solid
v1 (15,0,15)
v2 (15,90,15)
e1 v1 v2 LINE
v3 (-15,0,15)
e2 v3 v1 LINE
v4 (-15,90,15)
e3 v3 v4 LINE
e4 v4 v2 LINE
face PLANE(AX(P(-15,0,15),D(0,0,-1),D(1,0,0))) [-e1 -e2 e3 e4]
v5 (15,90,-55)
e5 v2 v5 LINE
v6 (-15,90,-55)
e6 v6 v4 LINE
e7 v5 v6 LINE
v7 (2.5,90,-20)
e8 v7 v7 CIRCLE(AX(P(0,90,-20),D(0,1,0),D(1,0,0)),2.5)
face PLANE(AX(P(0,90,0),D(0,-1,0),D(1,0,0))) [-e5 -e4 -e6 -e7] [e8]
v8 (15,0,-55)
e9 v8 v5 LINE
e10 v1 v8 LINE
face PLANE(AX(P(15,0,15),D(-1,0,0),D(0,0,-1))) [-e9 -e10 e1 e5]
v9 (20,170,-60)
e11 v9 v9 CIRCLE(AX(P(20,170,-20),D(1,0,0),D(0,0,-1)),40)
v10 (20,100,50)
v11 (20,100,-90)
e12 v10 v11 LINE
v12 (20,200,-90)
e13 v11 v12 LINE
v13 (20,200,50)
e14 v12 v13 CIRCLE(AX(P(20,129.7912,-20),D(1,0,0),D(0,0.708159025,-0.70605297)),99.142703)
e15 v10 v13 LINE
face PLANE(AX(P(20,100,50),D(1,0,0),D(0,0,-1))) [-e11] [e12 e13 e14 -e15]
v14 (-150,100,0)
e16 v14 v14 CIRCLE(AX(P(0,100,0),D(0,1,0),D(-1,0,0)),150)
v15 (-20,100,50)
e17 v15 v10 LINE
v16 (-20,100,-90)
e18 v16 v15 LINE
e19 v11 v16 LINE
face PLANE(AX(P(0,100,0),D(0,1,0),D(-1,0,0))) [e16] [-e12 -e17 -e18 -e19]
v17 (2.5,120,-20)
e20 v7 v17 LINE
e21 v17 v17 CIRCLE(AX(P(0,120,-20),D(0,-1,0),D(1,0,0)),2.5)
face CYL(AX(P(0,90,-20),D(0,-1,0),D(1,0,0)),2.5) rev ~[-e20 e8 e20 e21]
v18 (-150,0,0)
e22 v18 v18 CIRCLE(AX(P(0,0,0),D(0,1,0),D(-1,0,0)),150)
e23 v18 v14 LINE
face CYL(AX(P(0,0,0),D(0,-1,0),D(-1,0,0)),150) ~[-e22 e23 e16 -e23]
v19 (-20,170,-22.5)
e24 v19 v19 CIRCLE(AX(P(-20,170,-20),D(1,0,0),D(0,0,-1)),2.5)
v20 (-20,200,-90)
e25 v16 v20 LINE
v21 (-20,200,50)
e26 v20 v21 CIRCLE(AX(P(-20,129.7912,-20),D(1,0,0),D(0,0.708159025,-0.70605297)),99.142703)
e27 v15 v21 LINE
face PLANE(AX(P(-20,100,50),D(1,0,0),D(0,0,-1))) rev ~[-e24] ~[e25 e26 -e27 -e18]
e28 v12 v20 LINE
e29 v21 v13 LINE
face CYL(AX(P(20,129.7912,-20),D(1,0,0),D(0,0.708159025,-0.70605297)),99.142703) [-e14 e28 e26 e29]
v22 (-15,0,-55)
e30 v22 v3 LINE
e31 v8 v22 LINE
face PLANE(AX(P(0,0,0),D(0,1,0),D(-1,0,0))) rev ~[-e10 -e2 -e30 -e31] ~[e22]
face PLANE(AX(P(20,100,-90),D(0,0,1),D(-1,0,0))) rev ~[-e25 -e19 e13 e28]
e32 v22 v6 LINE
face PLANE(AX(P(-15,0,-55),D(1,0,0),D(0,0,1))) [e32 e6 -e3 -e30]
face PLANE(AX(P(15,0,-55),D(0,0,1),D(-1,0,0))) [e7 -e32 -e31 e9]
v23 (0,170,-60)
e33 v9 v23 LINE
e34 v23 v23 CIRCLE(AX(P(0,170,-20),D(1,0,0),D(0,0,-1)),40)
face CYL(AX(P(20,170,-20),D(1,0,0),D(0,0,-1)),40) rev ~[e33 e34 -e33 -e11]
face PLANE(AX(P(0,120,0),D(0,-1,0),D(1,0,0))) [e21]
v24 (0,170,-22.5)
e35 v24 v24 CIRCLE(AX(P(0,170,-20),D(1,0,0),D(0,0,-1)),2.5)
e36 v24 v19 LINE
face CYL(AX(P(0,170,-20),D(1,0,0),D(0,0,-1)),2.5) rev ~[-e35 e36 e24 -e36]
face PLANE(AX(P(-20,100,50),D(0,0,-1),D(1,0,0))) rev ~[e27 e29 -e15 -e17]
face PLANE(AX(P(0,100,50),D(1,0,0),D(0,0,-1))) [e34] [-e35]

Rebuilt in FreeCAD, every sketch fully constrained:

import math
import FreeCAD as App
import Part
import Sketcher

V = App.Vector
Q = App.Units.Quantity


def add_polygon(sketch, points):
    """Adds a closed chain of lines whose ends are joined by coincident constraints."""
    first, n = sketch.GeometryCount, len(points)
    for a, b in zip(points, points[1:] + points[:1]):
        sketch.addGeometry(Part.LineSegment(App.Vector(*a, 0), App.Vector(*b, 0)), False)
    for i in range(n):
        sketch.addConstraint(Sketcher.Constraint("Coincident", first + i, 2, first + (i + 1) % n, 1))

doc = App.newDocument("Part")
body = doc.addObject("PartDesign::Body", "Body")

# Sketch on XZ plane
sketch1 = doc.addObject("Sketcher::SketchObject", "Sketch")
body.addObject(sketch1)
sketch1.AttachmentSupport = (doc.XZ_Plane, [""])
sketch1.MapMode = "FlatFace"
sketch1.addGeometry(Part.Circle(V(0, 0, 0), V(0, 0, 1), 150), False)
sketch1.addConstraint([
    Sketcher.Constraint("Coincident", 0, 3, -1, 1),
    Sketcher.Constraint("Diameter", 0, Q("300 mm")),
])
pad1 = doc.addObject("PartDesign::Pad", "Pad")
body.addObject(pad1)
pad1.Profile = sketch1
pad1.Length = 100
pad1.Reversed = True

# Sketch on XZ plane
sketch2 = doc.addObject("Sketcher::SketchObject", "Sketch001")
body.addObject(sketch2)
sketch2.AttachmentSupport = (doc.XZ_Plane, [""])
sketch2.MapMode = "FlatFace"
sketch2.AttachmentOffset = App.Placement(V(0, 0, -100), App.Rotation())
add_polygon(sketch2, [(-20, -90), (-20, 50), (20, 50), (20, -90)])  # lines 0-3
sketch2.addConstraint([
    Sketcher.Constraint("Vertical", 0),
    Sketcher.Constraint("Horizontal", 1),
    Sketcher.Constraint("Vertical", 2),
    Sketcher.Constraint("Horizontal", 3),
    Sketcher.Constraint("DistanceX", 1, 1, 1, 2, Q("40 mm")),
    Sketcher.Constraint("DistanceY", 0, 1, 0, 2, Q("140 mm")),
    Sketcher.Constraint("DistanceX", 0, 2, -1, 1, Q("20 mm")),
    Sketcher.Constraint("DistanceY", -1, 1, 0, 2, Q("50 mm")),
])
pad2 = doc.addObject("PartDesign::Pad", "Pad001")
body.addObject(pad2)
pad2.Profile = sketch2
pad2.Length = 100
pad2.Reversed = True

# Sketch on YZ plane
sketch3 = doc.addObject("Sketcher::SketchObject", "Sketch002")
body.addObject(sketch3)
sketch3.AttachmentSupport = (doc.YZ_Plane, [""])
sketch3.MapMode = "FlatFace"
sketch3.AttachmentOffset = App.Placement(V(0, 0, 20), App.Rotation())
sketch3.addGeometry([
    Part.ArcOfCircle(Part.Circle(V(130, -20, 0), V(0, 0, 1), 99), math.radians(-45), math.radians(45)),
    Part.LineSegment(V(200, 50, 0), V(200, -90, 0)),
], False)
sketch3.addConstraint([
    Sketcher.Constraint("Coincident", 0, 1, 1, 2),
    Sketcher.Constraint("Coincident", 1, 1, 0, 2),
    Sketcher.Constraint("Vertical", 1),
    Sketcher.Constraint("Radius", 0, Q("99.1427 mm")),
    Sketcher.Constraint("DistanceY", 1, 2, 1, 1, Q("140 mm")),
    Sketcher.Constraint("DistanceY", 0, 3, -1, 1, Q("20 mm")),
    Sketcher.Constraint("DistanceX", -1, 1, 0, 1, Q("200 mm")),
])
pad3 = doc.addObject("PartDesign::Pad", "Pad002")
body.addObject(pad3)
pad3.Profile = sketch3
pad3.Length = 40
pad3.Reversed = True

# Sketch on YZ plane
sketch4 = doc.addObject("Sketcher::SketchObject", "Sketch003")
body.addObject(sketch4)
sketch4.AttachmentSupport = (doc.YZ_Plane, [""])
sketch4.MapMode = "FlatFace"
sketch4.AttachmentOffset = App.Placement(V(0, 0, 20), App.Rotation())
sketch4.addGeometry(Part.Circle(V(170, -20, 0), V(0, 0, 1), 40), False)
sketch4.addConstraint([
    Sketcher.Constraint("Diameter", 0, Q("80 mm")),
    Sketcher.Constraint("DistanceX", -1, 1, 0, 3, Q("170 mm")),
    Sketcher.Constraint("DistanceY", 0, 3, -1, 1, Q("20 mm")),
])
pocket1 = doc.addObject("PartDesign::Pocket", "Pocket")
body.addObject(pocket1)
pocket1.Profile = sketch4
pocket1.Length = 20

# Sketch on YZ plane
sketch5 = doc.addObject("Sketcher::SketchObject", "Sketch004")
body.addObject(sketch5)
sketch5.AttachmentSupport = (doc.YZ_Plane, [""])
sketch5.MapMode = "FlatFace"
sketch5.addGeometry(Part.Circle(V(170, -20, 0), V(0, 0, 1), 2.5), False)
sketch5.addConstraint([
    Sketcher.Constraint("Diameter", 0, Q("5 mm")),
    Sketcher.Constraint("DistanceX", -1, 1, 0, 3, Q("170 mm")),
    Sketcher.Constraint("DistanceY", 0, 3, -1, 1, Q("20 mm")),
])
pocket2 = doc.addObject("PartDesign::Pocket", "Pocket001")
body.addObject(pocket2)
pocket2.Profile = sketch5
pocket2.Length = 20

# Sketch on XZ plane
sketch6 = doc.addObject("Sketcher::SketchObject", "Sketch005")
body.addObject(sketch6)
sketch6.AttachmentSupport = (doc.XZ_Plane, [""])
sketch6.MapMode = "FlatFace"
add_polygon(sketch6, [(15, 15), (-15, 15), (-15, -55), (15, -55)])  # lines 0-3
sketch6.addConstraint([
    Sketcher.Constraint("Horizontal", 0),
    Sketcher.Constraint("Vertical", 1),
    Sketcher.Constraint("Horizontal", 2),
    Sketcher.Constraint("Vertical", 3),
    Sketcher.Constraint("DistanceX", 0, 2, 0, 1, Q("30 mm")),
    Sketcher.Constraint("DistanceY", 1, 2, 1, 1, Q("70 mm")),
    Sketcher.Constraint("DistanceX", 0, 2, -1, 1, Q("15 mm")),
    Sketcher.Constraint("DistanceY", -1, 1, 0, 2, Q("15 mm")),
])
pocket3 = doc.addObject("PartDesign::Pocket", "Pocket002")
body.addObject(pocket3)
pocket3.Profile = sketch6
pocket3.Length = 90

# Sketch on XZ plane
sketch7 = doc.addObject("Sketcher::SketchObject", "Sketch006")
body.addObject(sketch7)
sketch7.AttachmentSupport = (doc.XZ_Plane, [""])
sketch7.MapMode = "FlatFace"
sketch7.AttachmentOffset = App.Placement(V(0, 0, -90), App.Rotation())
sketch7.addGeometry(Part.Circle(V(0, -20, 0), V(0, 0, 1), 2.5), False)
sketch7.addConstraint([
    Sketcher.Constraint("PointOnObject", 0, 3, -2),
    Sketcher.Constraint("Diameter", 0, Q("5 mm")),
    Sketcher.Constraint("DistanceY", 0, 3, -1, 1, Q("20 mm")),
])
pocket4 = doc.addObject("PartDesign::Pocket", "Pocket003")
body.addObject(pocket4)
pocket4.Profile = sketch7
pocket4.Length = 30

doc.recompute()
